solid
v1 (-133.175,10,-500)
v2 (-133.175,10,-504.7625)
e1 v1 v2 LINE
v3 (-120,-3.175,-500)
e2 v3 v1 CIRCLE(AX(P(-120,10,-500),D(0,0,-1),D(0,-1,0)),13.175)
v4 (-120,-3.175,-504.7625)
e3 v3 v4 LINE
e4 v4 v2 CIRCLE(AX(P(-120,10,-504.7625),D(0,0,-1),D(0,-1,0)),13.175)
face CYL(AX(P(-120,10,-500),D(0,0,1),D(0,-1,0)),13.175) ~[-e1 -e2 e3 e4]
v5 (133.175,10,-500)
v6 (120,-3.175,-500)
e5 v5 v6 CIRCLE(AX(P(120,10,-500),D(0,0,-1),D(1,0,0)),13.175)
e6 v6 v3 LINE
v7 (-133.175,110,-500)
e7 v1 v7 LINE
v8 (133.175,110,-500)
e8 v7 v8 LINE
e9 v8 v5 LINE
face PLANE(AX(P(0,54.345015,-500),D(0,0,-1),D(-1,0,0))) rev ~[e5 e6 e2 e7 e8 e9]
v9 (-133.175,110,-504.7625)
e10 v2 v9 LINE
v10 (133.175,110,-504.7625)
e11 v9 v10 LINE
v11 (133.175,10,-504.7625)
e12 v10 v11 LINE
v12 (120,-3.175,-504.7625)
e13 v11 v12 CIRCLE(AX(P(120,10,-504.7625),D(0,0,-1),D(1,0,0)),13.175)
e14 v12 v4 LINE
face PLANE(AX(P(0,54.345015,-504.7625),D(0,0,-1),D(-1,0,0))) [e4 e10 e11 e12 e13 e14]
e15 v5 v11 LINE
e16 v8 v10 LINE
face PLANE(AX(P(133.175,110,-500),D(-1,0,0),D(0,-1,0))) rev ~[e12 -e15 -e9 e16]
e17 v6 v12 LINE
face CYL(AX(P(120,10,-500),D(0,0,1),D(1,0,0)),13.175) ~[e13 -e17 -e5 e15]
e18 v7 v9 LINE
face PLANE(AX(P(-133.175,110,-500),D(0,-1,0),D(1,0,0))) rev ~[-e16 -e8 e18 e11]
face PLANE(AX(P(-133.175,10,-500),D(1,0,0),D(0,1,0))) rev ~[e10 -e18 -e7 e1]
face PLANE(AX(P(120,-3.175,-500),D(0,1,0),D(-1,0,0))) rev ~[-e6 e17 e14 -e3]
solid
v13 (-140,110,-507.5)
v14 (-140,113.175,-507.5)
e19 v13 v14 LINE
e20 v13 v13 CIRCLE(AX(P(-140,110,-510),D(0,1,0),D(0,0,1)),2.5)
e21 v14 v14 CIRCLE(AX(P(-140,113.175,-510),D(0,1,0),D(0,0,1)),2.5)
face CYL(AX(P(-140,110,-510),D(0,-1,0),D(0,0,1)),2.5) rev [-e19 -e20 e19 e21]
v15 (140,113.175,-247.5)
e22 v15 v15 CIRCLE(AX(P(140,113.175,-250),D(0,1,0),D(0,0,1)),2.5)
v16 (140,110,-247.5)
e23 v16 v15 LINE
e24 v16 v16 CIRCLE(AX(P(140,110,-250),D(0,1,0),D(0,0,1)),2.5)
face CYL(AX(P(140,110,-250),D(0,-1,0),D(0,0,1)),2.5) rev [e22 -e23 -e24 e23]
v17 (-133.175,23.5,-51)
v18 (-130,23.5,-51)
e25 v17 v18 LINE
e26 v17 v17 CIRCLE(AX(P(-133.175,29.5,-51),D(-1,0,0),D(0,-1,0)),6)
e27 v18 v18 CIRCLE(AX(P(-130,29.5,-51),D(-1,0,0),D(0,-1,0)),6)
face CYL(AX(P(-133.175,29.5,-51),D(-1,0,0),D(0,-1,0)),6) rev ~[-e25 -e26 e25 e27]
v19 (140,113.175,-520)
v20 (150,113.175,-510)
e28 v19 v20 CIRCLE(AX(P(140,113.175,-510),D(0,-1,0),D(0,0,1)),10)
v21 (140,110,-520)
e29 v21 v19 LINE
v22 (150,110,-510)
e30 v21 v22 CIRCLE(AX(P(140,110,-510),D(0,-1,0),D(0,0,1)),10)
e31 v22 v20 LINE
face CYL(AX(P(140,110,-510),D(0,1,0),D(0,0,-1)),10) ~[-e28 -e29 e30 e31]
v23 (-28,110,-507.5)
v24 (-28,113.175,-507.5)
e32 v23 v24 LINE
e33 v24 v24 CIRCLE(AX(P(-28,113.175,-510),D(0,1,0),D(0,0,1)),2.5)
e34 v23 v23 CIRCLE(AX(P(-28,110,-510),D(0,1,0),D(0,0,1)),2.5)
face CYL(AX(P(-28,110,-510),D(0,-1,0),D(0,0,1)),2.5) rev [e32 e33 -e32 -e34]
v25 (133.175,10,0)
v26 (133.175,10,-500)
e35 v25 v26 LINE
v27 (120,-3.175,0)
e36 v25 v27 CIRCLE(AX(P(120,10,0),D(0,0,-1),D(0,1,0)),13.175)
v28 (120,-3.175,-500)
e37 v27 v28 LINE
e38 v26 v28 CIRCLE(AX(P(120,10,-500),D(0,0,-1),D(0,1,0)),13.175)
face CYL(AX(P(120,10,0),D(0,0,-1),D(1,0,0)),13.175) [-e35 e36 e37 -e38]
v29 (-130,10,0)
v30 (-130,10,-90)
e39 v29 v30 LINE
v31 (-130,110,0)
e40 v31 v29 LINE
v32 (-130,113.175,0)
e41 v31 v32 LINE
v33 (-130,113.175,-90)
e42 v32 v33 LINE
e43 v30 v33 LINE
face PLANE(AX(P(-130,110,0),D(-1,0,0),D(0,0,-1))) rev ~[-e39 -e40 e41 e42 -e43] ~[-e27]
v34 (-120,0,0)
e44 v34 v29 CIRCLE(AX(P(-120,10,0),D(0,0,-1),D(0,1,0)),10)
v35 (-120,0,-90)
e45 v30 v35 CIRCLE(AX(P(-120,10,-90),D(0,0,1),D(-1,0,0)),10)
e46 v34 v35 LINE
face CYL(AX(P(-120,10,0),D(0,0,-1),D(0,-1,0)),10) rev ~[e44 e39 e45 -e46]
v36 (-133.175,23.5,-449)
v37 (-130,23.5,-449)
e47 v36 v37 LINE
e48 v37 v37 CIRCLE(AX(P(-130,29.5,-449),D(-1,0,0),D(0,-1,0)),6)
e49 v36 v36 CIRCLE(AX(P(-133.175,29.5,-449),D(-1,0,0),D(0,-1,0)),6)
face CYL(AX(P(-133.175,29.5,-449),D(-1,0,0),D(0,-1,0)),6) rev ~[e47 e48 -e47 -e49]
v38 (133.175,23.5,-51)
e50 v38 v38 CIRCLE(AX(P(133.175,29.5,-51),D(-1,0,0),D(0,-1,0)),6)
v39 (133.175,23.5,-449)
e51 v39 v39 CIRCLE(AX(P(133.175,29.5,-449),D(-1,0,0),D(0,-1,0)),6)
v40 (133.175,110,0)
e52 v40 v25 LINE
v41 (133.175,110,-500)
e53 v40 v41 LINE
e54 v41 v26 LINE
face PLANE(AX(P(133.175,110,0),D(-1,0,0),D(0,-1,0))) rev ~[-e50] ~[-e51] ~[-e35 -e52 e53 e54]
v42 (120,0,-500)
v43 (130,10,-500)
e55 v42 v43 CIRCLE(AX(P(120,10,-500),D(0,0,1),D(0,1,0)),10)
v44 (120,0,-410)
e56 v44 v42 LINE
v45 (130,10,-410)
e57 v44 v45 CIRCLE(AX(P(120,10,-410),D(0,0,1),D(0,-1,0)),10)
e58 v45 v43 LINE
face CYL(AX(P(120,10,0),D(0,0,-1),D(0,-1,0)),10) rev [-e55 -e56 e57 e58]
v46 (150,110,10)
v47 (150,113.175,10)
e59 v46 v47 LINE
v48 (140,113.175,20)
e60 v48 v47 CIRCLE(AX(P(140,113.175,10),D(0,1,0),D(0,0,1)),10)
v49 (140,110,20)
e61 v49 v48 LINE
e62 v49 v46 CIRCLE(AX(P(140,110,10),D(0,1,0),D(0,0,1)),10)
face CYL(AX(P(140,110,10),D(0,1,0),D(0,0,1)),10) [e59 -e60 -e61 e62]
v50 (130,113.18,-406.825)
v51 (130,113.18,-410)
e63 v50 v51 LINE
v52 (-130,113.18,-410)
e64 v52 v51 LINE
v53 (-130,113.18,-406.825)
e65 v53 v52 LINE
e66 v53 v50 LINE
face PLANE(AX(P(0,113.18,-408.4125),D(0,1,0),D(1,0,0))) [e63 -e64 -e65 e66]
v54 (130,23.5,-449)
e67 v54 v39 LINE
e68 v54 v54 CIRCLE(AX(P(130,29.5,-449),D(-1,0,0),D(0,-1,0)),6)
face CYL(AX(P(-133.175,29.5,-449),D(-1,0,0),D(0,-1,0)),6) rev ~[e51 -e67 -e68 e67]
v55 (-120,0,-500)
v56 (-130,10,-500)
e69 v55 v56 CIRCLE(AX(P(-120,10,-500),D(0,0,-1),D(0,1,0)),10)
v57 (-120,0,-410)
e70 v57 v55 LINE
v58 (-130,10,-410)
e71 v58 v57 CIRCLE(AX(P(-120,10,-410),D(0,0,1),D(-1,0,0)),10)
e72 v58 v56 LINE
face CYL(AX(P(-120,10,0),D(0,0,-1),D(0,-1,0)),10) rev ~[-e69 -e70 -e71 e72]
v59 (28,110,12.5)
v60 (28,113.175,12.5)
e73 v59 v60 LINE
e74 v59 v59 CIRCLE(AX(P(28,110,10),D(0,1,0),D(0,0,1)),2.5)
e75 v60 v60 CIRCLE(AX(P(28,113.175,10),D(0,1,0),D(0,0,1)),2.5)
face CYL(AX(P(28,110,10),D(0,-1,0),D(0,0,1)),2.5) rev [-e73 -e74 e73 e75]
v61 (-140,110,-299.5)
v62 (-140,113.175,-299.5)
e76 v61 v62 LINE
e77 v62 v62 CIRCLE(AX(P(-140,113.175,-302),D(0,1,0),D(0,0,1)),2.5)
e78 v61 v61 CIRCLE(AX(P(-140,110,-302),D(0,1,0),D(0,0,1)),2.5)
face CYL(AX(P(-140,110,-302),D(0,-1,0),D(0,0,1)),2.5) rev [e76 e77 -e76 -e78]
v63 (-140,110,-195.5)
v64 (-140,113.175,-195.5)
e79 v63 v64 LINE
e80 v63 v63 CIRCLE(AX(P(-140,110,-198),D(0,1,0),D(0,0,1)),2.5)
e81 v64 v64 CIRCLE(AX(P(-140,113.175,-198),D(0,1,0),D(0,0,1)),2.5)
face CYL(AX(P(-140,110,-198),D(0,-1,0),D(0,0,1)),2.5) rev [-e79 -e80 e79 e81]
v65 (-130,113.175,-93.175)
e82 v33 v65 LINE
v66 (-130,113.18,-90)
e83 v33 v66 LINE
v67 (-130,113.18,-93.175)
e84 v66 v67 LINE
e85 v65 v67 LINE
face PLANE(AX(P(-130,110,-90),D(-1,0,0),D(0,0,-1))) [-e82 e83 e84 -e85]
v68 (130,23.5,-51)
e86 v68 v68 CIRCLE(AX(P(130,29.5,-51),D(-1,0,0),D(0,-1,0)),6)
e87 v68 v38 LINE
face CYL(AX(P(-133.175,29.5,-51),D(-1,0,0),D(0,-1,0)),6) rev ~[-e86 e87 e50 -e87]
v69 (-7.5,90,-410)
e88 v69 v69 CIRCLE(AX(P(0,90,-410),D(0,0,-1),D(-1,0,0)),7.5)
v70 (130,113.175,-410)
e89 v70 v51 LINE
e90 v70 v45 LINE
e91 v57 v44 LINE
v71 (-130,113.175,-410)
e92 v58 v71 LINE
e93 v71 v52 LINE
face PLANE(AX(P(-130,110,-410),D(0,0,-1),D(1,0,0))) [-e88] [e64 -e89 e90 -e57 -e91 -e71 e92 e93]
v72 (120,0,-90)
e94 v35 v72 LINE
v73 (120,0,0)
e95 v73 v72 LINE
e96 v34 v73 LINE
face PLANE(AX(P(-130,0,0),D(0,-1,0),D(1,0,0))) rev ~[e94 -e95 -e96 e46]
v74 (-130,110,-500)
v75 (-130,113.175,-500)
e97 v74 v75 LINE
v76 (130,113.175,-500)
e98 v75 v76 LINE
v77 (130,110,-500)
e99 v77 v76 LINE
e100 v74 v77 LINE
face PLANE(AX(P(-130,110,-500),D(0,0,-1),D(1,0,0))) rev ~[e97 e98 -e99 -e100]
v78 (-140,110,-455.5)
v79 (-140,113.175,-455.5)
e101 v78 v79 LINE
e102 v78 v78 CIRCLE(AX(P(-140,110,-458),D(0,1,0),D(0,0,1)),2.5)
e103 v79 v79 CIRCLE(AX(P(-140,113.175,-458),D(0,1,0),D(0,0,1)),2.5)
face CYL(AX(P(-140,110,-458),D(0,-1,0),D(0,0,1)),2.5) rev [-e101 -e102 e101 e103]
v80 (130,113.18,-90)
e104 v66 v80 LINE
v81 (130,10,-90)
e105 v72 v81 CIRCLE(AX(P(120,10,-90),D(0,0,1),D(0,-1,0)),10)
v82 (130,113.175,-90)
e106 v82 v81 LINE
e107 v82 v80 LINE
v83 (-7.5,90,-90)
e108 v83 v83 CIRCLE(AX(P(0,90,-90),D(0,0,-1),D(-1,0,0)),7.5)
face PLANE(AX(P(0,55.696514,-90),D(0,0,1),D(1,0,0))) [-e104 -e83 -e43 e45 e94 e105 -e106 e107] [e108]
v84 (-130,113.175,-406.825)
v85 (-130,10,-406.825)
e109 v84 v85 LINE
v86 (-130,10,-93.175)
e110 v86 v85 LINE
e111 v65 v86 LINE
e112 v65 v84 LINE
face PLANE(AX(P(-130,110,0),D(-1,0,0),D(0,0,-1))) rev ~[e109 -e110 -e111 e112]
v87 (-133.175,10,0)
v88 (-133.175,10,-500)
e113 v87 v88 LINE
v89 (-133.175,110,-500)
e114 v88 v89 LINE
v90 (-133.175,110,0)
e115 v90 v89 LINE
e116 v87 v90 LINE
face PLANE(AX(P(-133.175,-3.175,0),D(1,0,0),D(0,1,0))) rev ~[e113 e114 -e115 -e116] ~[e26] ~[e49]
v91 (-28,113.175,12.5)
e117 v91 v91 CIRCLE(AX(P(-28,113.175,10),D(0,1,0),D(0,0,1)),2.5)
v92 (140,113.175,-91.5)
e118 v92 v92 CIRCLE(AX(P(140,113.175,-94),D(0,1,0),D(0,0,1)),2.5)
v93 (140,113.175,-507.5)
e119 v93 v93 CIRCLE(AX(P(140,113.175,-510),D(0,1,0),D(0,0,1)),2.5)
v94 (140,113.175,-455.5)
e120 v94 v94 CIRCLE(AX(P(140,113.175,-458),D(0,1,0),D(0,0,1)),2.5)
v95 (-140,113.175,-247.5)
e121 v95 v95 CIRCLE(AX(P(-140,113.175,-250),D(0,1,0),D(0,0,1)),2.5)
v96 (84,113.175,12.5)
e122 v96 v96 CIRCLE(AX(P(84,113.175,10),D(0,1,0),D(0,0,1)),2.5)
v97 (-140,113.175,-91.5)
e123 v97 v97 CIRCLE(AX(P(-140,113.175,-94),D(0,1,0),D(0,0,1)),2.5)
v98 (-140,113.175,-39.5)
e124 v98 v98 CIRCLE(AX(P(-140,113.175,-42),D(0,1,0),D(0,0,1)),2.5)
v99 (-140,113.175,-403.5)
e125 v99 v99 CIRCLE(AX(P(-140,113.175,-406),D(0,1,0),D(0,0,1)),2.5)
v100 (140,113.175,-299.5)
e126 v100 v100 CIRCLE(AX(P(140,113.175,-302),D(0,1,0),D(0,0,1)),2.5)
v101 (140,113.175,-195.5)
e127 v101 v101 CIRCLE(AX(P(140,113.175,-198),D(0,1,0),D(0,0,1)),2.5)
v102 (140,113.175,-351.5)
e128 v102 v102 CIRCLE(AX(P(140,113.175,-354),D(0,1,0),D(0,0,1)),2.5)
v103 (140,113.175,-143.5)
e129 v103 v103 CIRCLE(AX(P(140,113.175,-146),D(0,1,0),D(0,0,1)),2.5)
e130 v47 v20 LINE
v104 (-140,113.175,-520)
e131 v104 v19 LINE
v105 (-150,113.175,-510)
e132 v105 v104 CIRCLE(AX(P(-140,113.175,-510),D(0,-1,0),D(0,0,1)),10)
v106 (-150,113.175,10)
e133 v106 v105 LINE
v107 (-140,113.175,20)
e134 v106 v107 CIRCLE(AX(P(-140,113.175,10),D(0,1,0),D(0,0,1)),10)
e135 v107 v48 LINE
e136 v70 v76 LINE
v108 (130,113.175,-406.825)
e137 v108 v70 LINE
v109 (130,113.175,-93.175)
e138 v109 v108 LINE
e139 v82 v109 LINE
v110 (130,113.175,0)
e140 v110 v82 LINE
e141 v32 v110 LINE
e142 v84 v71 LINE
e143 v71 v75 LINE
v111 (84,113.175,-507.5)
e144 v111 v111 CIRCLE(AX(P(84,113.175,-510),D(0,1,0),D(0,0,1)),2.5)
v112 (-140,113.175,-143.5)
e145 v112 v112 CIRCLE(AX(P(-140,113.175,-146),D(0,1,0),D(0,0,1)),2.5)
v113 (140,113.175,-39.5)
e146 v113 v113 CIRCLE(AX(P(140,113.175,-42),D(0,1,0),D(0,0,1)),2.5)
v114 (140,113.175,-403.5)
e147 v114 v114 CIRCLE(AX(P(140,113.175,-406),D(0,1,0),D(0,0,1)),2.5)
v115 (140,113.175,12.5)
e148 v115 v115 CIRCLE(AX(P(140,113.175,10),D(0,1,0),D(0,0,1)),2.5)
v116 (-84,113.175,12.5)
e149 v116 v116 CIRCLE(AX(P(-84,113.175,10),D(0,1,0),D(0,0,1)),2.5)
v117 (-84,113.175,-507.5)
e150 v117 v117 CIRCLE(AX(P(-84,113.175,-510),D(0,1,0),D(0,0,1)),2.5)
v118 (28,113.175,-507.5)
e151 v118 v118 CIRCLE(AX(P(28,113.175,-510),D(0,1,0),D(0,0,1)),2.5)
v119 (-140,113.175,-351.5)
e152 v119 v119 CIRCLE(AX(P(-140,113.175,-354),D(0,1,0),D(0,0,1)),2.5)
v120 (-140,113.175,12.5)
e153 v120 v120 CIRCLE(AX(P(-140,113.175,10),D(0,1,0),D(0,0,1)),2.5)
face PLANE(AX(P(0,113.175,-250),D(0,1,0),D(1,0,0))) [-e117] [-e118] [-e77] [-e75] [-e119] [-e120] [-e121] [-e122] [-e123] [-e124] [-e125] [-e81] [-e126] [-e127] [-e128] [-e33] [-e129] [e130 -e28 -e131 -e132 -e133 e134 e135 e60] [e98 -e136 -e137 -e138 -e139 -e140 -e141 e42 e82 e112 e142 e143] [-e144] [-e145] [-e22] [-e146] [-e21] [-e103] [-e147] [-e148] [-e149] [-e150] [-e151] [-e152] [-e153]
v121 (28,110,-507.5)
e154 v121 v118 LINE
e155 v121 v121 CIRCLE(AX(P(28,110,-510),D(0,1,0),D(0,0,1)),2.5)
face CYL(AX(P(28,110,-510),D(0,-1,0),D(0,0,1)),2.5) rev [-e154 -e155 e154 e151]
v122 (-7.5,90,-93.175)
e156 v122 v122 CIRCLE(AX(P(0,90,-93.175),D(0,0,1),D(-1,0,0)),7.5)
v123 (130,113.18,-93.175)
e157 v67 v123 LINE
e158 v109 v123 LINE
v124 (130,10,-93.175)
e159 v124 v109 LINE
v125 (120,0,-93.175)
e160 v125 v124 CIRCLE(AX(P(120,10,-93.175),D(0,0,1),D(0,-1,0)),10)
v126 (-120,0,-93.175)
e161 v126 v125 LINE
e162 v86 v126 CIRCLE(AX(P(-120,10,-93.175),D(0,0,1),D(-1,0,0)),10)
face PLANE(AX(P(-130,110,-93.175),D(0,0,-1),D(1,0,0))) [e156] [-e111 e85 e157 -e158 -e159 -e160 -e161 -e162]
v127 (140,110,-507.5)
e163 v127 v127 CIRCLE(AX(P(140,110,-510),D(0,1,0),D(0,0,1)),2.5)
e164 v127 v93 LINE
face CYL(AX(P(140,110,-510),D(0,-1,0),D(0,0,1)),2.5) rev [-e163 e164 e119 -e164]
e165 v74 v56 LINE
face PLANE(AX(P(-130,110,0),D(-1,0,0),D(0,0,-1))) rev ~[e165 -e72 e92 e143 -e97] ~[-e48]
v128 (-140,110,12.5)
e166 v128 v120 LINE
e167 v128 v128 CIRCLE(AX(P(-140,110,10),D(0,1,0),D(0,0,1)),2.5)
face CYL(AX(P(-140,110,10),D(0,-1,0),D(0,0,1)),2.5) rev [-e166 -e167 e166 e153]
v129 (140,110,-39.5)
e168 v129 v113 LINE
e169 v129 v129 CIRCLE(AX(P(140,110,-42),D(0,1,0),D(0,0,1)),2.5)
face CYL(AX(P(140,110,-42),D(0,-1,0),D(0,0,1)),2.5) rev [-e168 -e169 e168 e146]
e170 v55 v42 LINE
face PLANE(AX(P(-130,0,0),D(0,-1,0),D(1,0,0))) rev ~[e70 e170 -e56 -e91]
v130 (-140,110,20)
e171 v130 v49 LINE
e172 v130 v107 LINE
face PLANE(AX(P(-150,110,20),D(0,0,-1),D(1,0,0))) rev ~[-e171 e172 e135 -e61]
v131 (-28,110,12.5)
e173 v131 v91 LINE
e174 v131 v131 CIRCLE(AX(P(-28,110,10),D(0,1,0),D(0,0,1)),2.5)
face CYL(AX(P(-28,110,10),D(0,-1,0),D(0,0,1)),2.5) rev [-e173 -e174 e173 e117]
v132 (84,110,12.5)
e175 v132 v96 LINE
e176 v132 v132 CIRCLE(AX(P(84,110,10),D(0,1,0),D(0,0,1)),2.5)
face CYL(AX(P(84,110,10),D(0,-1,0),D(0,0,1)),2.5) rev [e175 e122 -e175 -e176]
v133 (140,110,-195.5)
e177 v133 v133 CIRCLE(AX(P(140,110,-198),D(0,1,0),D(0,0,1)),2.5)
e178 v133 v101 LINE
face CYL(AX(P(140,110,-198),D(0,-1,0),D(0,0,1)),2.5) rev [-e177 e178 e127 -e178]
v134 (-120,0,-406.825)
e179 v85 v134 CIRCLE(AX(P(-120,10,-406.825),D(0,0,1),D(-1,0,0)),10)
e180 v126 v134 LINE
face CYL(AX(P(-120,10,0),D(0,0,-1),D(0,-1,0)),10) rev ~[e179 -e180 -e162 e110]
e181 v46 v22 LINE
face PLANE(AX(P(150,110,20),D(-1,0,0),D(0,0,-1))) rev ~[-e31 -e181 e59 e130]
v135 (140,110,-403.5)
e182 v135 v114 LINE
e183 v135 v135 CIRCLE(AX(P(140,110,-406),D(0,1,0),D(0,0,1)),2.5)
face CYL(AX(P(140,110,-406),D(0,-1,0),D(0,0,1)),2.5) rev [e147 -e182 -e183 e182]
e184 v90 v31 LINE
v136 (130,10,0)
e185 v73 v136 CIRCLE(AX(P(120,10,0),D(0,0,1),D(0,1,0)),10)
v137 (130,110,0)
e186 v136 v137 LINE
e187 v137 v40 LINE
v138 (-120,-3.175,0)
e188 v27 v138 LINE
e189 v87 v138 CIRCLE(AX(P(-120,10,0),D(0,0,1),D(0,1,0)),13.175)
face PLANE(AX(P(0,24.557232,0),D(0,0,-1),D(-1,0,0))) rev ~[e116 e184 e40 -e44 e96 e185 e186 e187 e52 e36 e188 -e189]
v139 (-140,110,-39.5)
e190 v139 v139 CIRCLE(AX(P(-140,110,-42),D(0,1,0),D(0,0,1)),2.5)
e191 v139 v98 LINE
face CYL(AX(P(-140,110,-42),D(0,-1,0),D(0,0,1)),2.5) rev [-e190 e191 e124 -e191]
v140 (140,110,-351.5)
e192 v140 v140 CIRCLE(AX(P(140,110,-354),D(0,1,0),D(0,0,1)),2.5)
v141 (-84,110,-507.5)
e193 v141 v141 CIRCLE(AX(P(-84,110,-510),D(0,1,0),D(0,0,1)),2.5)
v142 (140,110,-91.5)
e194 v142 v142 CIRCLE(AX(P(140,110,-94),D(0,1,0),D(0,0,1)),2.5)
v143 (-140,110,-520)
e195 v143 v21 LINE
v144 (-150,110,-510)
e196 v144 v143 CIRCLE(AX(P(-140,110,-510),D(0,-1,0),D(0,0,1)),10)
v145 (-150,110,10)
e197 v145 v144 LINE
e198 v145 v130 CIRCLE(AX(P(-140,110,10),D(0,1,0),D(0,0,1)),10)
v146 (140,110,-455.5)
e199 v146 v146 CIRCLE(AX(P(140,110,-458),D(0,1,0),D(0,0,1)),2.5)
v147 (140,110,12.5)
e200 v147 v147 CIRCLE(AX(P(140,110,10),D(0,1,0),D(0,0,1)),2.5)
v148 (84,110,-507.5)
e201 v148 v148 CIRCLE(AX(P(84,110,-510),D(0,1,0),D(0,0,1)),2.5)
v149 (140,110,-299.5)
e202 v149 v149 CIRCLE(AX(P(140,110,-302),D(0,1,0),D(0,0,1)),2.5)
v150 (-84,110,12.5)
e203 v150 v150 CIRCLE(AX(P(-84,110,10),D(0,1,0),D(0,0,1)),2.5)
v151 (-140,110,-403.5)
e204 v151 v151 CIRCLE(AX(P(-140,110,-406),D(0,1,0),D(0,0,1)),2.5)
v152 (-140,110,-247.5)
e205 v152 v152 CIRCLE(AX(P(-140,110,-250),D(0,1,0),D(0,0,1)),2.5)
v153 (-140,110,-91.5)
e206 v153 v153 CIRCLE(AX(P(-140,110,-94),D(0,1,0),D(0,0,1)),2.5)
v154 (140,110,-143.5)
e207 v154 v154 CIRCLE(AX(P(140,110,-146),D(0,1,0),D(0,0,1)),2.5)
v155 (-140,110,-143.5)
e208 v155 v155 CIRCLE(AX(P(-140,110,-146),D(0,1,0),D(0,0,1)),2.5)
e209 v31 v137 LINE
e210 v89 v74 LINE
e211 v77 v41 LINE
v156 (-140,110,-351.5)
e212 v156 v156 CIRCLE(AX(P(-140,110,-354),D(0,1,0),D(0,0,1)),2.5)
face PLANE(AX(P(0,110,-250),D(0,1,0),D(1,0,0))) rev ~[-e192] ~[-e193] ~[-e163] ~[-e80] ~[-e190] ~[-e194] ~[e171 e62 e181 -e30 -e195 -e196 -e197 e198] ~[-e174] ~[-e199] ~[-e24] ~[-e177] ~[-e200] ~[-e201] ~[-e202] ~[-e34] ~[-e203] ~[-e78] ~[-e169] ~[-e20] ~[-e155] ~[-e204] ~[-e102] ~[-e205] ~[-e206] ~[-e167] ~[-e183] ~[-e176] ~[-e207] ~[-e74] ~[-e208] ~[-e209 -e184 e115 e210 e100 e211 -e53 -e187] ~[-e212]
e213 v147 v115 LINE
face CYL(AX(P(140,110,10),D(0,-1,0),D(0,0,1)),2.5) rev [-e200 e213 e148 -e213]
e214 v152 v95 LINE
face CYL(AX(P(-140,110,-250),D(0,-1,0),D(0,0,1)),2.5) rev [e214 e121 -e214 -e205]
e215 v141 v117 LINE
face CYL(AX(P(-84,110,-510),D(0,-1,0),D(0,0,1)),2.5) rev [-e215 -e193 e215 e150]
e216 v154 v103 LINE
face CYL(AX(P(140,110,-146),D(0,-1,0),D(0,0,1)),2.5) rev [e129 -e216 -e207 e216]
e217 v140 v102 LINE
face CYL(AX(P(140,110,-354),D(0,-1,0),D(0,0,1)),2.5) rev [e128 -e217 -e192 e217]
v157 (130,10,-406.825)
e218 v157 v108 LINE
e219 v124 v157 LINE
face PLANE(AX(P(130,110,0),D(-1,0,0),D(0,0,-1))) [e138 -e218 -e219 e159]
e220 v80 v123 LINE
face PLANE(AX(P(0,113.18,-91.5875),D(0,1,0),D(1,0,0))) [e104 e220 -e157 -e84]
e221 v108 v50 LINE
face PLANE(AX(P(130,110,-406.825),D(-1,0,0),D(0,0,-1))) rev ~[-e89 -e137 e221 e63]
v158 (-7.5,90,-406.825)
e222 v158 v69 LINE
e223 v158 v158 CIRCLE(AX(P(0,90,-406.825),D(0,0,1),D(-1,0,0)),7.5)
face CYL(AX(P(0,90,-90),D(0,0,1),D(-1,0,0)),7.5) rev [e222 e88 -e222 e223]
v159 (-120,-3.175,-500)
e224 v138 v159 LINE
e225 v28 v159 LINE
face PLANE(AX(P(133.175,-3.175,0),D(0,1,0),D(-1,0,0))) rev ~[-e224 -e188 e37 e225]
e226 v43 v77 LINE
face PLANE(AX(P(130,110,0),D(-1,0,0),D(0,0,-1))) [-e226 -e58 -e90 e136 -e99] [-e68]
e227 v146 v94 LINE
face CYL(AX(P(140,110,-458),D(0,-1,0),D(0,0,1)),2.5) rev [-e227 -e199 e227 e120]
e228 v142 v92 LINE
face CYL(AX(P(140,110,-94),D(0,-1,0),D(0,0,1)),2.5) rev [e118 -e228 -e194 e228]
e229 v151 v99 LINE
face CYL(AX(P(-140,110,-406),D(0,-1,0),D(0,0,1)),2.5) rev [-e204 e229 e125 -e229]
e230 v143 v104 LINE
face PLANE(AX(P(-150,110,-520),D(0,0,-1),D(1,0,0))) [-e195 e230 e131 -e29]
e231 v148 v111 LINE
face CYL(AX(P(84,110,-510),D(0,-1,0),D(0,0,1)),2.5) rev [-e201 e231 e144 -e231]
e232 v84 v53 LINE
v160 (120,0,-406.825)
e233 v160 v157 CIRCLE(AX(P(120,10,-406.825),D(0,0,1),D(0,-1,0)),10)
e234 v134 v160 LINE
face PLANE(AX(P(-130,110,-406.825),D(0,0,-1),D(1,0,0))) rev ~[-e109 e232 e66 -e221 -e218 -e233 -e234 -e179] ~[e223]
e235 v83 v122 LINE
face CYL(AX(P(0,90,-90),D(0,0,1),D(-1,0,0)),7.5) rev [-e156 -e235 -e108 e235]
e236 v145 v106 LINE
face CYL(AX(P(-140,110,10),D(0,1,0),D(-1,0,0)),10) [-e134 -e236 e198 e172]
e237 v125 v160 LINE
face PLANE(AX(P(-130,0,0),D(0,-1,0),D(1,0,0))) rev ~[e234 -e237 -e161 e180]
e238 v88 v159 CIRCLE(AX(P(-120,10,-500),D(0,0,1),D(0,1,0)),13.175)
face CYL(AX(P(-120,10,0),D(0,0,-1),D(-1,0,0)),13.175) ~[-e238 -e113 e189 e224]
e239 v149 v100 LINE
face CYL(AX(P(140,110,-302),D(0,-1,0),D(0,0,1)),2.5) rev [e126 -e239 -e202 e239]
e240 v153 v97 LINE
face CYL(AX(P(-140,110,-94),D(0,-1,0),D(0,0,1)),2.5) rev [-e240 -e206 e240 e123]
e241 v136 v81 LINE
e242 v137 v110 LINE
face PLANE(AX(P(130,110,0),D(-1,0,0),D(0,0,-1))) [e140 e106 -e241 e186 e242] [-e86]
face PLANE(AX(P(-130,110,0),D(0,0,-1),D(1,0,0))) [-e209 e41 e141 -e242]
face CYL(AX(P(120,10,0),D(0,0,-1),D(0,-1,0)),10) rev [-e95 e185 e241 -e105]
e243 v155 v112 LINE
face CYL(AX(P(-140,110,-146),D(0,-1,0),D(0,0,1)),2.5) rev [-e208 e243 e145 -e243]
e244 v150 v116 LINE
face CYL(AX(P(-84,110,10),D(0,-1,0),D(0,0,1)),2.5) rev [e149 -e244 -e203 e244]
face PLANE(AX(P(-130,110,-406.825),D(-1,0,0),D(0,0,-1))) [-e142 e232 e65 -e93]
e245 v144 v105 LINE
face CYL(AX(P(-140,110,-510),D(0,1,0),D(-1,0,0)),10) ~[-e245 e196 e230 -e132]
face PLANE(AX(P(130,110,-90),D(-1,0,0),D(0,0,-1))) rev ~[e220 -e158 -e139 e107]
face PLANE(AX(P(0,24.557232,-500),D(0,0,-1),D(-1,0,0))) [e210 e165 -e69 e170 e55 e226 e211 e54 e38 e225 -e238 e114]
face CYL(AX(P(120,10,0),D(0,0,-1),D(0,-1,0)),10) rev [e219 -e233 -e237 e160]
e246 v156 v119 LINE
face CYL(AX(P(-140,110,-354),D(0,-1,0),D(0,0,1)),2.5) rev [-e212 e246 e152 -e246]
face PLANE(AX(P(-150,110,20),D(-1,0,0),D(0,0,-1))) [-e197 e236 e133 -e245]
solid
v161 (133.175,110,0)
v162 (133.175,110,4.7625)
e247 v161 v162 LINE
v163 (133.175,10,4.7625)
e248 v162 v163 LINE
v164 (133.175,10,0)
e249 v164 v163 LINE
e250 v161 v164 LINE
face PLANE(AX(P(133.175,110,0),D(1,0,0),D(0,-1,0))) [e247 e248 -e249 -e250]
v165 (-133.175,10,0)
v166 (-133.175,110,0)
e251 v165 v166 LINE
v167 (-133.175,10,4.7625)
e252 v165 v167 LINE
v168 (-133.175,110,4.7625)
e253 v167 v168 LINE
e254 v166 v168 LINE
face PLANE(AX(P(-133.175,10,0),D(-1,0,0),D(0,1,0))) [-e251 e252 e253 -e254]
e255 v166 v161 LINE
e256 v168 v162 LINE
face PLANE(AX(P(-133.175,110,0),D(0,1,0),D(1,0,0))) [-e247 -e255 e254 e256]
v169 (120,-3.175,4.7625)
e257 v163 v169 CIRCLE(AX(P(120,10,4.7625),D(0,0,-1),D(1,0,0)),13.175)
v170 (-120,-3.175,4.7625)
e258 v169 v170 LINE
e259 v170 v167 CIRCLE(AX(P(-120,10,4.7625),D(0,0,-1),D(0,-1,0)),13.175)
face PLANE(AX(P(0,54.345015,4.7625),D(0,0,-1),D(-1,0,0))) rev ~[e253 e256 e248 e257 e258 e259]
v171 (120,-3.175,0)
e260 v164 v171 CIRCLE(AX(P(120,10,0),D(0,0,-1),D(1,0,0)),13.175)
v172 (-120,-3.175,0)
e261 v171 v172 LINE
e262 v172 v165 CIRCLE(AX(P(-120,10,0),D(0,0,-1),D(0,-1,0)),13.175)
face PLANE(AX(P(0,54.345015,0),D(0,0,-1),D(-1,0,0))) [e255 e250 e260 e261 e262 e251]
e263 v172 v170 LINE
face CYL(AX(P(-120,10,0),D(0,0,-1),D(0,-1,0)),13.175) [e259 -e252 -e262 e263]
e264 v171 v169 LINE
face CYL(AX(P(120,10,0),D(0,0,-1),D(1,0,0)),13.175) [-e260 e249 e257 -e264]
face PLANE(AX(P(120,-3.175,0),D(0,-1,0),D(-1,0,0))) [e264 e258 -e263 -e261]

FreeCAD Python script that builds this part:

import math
import FreeCAD as App
import Part
import Sketcher
Q = App.Units.Quantity


def edges_at(feature, points):
    """Names of the edges that pass closest to the given points."""
    edges = feature.Shape.Edges
    near = lambda p: min(range(len(edges)), key=lambda i: edges[i].distToShape(Part.Vertex(*p))[0])
    return sorted({f"Edge{near(p) + 1}" for p in points})


def add_polygon(sketch, points):
    """Adds a closed chain of lines whose ends are joined by coincident constraints."""
    first, n = sketch.GeometryCount, len(points)
    for a, b in zip(points, points[1:] + points[:1]):
        sketch.addGeometry(Part.LineSegment(App.Vector(*a, 0), App.Vector(*b, 0)), False)
    for i in range(n):
        sketch.addConstraint(Sketcher.Constraint("Coincident", first + i, 2, first + (i + 1) % n, 1))

doc = App.newDocument("Part")
params = doc.addObject("Spreadsheet::Sheet", "Params")
for row, (alias, value) in enumerate([
    ("sketch1_width", "260 mm"),
    ("sketch1_height", "110 mm"),
    ("sketch1_width2", "266.35 mm"),
    ("pad1_length", "500 mm"),
    ("fillet_radius", "10 mm"),
    ("fillet2_radius", "13.175 mm"),
    ("sketch2_width", "240 mm"),
    ("sketch2_height", "100 mm"),
    ("pad2_length", "4.7625 mm"),
    ("sketch3_radius", "10 mm"),
    ("sketch3_width", "240 mm"),
    ("sketch3_height", "100 mm"),
    ("pad3_length", "3.175 mm"),
    ("sketch4_width", "300 mm"),
    ("sketch4_width2", "260 mm"),
    ("sketch4_height", "540 mm"),
    ("sketch4_height2", "500 mm"),
    ("pad4_length", "3.175 mm"),
    ("fillet3_radius", "10 mm"),
    ("sketch5_width", "240 mm"),
    ("sketch5_height", "100 mm"),
    ("pad5_length", "4.7625 mm"),
    ("sketch6_radius", "10 mm"),
    ("sketch6_width", "260 mm"),
    ("sketch6_height", "100 mm"),
    ("pad6_length", "3.175 mm"),
    ("sketch7_diameter", "12 mm"),
    ("sketch8_diameter", "15 mm"),
    ("pad7_length", "320 mm"),
    ("sketch9_width", "260 mm"),
    ("pad8_length", "3.18 mm"),
    ("sketch10_diameter", "5 mm"),
    ("pocket2_length", "3.175 mm"),
], start=1):
    params.set(f"A{row}", alias)
    params.set(f"B{row}", "=" + value)
    params.setAlias(f"B{row}", alias)

body = doc.addObject("PartDesign::Body", "Body")

sketch1 = body.newObject("Sketcher::SketchObject", "Sketch")
sketch1.AttachmentSupport = (doc.getObject("XY_Plane"), [""])
sketch1.MapMode = "FlatFace"
add_polygon(sketch1, [(130, 0), (-130, 0), (-130, 110), (-133.2, 110), (-133.2, -3.2), (133.2, -3.2), (133.2, 110), (130, 110)])
sketch1.addConstraint([
    Sketcher.Constraint("Horizontal", 0),
    Sketcher.Constraint("Vertical", 1),
    Sketcher.Constraint("Horizontal", 2),
    Sketcher.Constraint("Vertical", 3),
    Sketcher.Constraint("Horizontal", 4),
    Sketcher.Constraint("Vertical", 5),
    Sketcher.Constraint("Horizontal", 6),
    Sketcher.Constraint("Vertical", 7),
    Sketcher.Constraint("Symmetric", 0, 2, 7, 2, -1, 1),
    Sketcher.Constraint("Symmetric", 2, 2, 5, 2, -2),
    Sketcher.Constraint("DistanceX", 0, 2, 0, 1, Q("260 mm")),
    Sketcher.Constraint("DistanceY", 1, 1, 1, 2, Q("110 mm")),
    Sketcher.Constraint("DistanceX", 4, 1, 4, 2, Q("266.35 mm")),
    Sketcher.Constraint("DistanceY", 3, 2, 3, 1, Q("113.175 mm")),
])
sketch1.setExpression("Constraints[18]", "Params.sketch1_width")
sketch1.setExpression("Constraints[19]", "Params.sketch1_height")
sketch1.setExpression("Constraints[20]", "Params.sketch1_width2")
pad1 = body.newObject("PartDesign::Pad", "Pad")
pad1.Profile = sketch1
pad1.setExpression("Length", "Params.pad1_length")
pad1.Reversed = True
doc.recompute()

fillet = body.newObject("PartDesign::Fillet", "Fillet")
fillet.Base = (pad1, edges_at(pad1, [(-130, 0, -250), (130, 0, -250)]))
fillet.setExpression("Radius", "Params.fillet_radius")
doc.recompute()

fillet2 = body.newObject("PartDesign::Fillet", "Fillet001")
fillet2.Base = (fillet, edges_at(fillet, [(-133.175, -3.175, -250), (133.175, -3.175, -250)]))
fillet2.setExpression("Radius", "Params.fillet2_radius")
body2 = doc.addObject("PartDesign::Body", "Body001")

sketch2 = body2.newObject("Sketcher::SketchObject", "Sketch001")
sketch2.AttachmentSupport = (doc.getObject("XY_Plane001"), [""])
sketch2.MapMode = "FlatFace"
sketch2.addGeometry([
    Part.LineSegment(App.Vector(133, 10, 0), App.Vector(133, 110, 0)),
    Part.LineSegment(App.Vector(133, 110, 0), App.Vector(-133, 110, 0)),
    Part.LineSegment(App.Vector(-133, 110, 0), App.Vector(-133, 10, 0)),
    Part.ArcOfCircle(Part.Circle(App.Vector(-120, 10, 0), App.Vector(0, 0, 1), 13), math.radians(180), math.radians(270)),
    Part.LineSegment(App.Vector(-120, -3, 0), App.Vector(120, -3, 0)),
    Part.ArcOfCircle(Part.Circle(App.Vector(120, 10, 0), App.Vector(0, 0, 1), 13), math.radians(-90), math.radians(0)),
], False)
sketch2.addConstraint([
    Sketcher.Constraint("Coincident", 0, 2, 1, 1),
    Sketcher.Constraint("Coincident", 1, 2, 2, 1),
    Sketcher.Constraint("Tangent", 2, 2, 3, 1),
    Sketcher.Constraint("Tangent", 3, 2, 4, 1),
    Sketcher.Constraint("Tangent", 4, 2, 5, 1),
    Sketcher.Constraint("Tangent", 5, 2, 0, 1),
    Sketcher.Constraint("Vertical", 0),
    Sketcher.Constraint("Horizontal", 1),
    Sketcher.Constraint("Vertical", 2),
    Sketcher.Constraint("Horizontal", 4),
    Sketcher.Constraint("Equal", 3, 5),
    Sketcher.Constraint("DistanceX", 4, 1, 4, 2, Q("240 mm")),
    Sketcher.Constraint("DistanceY", 0, 1, 0, 2, Q("100 mm")),
    Sketcher.Constraint("DistanceX", 3, 3, -1, 1, Q("120 mm")),
    Sketcher.Constraint("DistanceY", -1, 1, 3, 3, Q("10 mm")),
    Sketcher.Constraint("Radius", 3, Q("13.175 mm")),
])
sketch2.setExpression("Constraints[11]", "Params.sketch2_width")
sketch2.setExpression("Constraints[12]", "Params.sketch2_height")
pad2 = body2.newObject("PartDesign::Pad", "Pad001")
pad2.Profile = sketch2
pad2.setExpression("Length", "Params.pad2_length")
body3 = doc.addObject("PartDesign::Body", "Body002")

sketch3 = body3.newObject("Sketcher::SketchObject", "Sketch002")
sketch3.AttachmentSupport = (doc.getObject("XY_Plane002"), [""])
sketch3.MapMode = "FlatFace"
sketch3.AttachmentOffset = App.Placement(App.Vector(0, 0, -90), App.Rotation())
sketch3.addGeometry([
    Part.LineSegment(App.Vector(120, 0, 0), App.Vector(-120, 0, 0)),
    Part.ArcOfCircle(Part.Circle(App.Vector(-120, 10, 0), App.Vector(0, 0, 1), 10), math.radians(180), math.radians(270)),
    Part.LineSegment(App.Vector(-130, 10, 0), App.Vector(-130, 110, 0)),
    Part.LineSegment(App.Vector(-130, 110, 0), App.Vector(130, 110, 0)),
    Part.LineSegment(App.Vector(130, 110, 0), App.Vector(130, 10, 0)),
    Part.ArcOfCircle(Part.Circle(App.Vector(120, 10, 0), App.Vector(0, 0, 1), 10), math.radians(-90), math.radians(0)),
], False)
sketch3.addConstraint([
    Sketcher.Constraint("Tangent", 0, 2, 1, 2),
    Sketcher.Constraint("Tangent", 1, 1, 2, 1),
    Sketcher.Constraint("Coincident", 2, 2, 3, 1),
    Sketcher.Constraint("Coincident", 3, 2, 4, 1),
    Sketcher.Constraint("Tangent", 4, 2, 5, 2),
    Sketcher.Constraint("Tangent", 5, 1, 0, 1),
    Sketcher.Constraint("Horizontal", 0),
    Sketcher.Constraint("Vertical", 2),
    Sketcher.Constraint("Horizontal", 3),
    Sketcher.Constraint("Vertical", 4),
    Sketcher.Constraint("Equal", 1, 5),
    Sketcher.Constraint("Symmetric", 0, 2, 5, 1, -1, 1),
    Sketcher.Constraint("Radius", 1, Q("10 mm")),
    Sketcher.Constraint("DistanceX", 0, 2, 0, 1, Q("240 mm")),
    Sketcher.Constraint("DistanceY", 2, 1, 2, 2, Q("100 mm")),
])
sketch3.setExpression("Constraints[12]", "Params.sketch3_radius")
sketch3.setExpression("Constraints[13]", "Params.sketch3_width")
sketch3.setExpression("Constraints[14]", "Params.sketch3_height")
pad3 = body3.newObject("PartDesign::Pad", "Pad002")
pad3.Profile = sketch3
pad3.setExpression("Length", "Params.pad3_length")
pad3.Reversed = True
body4 = doc.addObject("PartDesign::Body", "Body003")

sketch4 = body4.newObject("Sketcher::SketchObject", "Sketch003")
sketch4.AttachmentSupport = (doc.getObject("XZ_Plane003"), [""])
sketch4.MapMode = "FlatFace"
sketch4.AttachmentOffset = App.Placement(App.Vector(0, 0, -110), App.Rotation())
add_polygon(sketch4, [(-150, -520), (-150, 20), (150, 20), (150, -520)])
add_polygon(sketch4, [(130, 0), (-130, 0), (-130, -500), (130, -500)])
sketch4.addConstraint([
    Sketcher.Constraint("Vertical", 0),
    Sketcher.Constraint("Horizontal", 1),
    Sketcher.Constraint("Vertical", 2),
    Sketcher.Constraint("Horizontal", 3),
    Sketcher.Constraint("Horizontal", 4),
    Sketcher.Constraint("Vertical", 5),
    Sketcher.Constraint("Horizontal", 6),
    Sketcher.Constraint("Vertical", 7),
    Sketcher.Constraint("Symmetric", 4, 2, 7, 2, -1, 1),
    Sketcher.Constraint("DistanceX", 1, 1, 1, 2, Q("300 mm")),
    Sketcher.Constraint("DistanceX", 4, 2, 4, 1, Q("260 mm")),
    Sketcher.Constraint("DistanceY", 0, 1, 0, 2, Q("540 mm")),
    Sketcher.Constraint("DistanceY", 5, 2, 5, 1, Q("500 mm")),
    Sketcher.Constraint("DistanceX", 0, 2, -1, 1, Q("150 mm")),
    Sketcher.Constraint("DistanceY", -1, 1, 0, 2, Q("20 mm")),
])
sketch4.setExpression("Constraints[17]", "Params.sketch4_width")
sketch4.setExpression("Constraints[18]", "Params.sketch4_width2")
sketch4.setExpression("Constraints[19]", "Params.sketch4_height")
sketch4.setExpression("Constraints[20]", "Params.sketch4_height2")
pad4 = body4.newObject("PartDesign::Pad", "Pad003")
pad4.Profile = sketch4
pad4.setExpression("Length", "Params.pad4_length")
pad4.Reversed = True
doc.recompute()

fillet3 = body4.newObject("PartDesign::Fillet", "Fillet002")
fillet3.Base = (pad4, edges_at(pad4, [
    (150, 111.588, -520),
    (150, 111.588, 20),
    (-150, 111.588, 20),
    (-150, 111.588, -520),
]))
fillet3.setExpression("Radius", "Params.fillet3_radius")
body5 = doc.addObject("PartDesign::Body", "Body004")

sketch5 = body5.newObject("Sketcher::SketchObject", "Sketch004")
sketch5.AttachmentSupport = (doc.getObject("XY_Plane004"), [""])
sketch5.MapMode = "FlatFace"
sketch5.AttachmentOffset = App.Placement(App.Vector(0, 0, -500), App.Rotation())
sketch5.addGeometry([
    Part.LineSegment(App.Vector(-133, 110, 0), App.Vector(133, 110, 0)),
    Part.LineSegment(App.Vector(133, 110, 0), App.Vector(133, 10, 0)),
    Part.ArcOfCircle(Part.Circle(App.Vector(120, 10, 0), App.Vector(0, 0, 1), 13), math.radians(-90), math.radians(0)),
    Part.LineSegment(App.Vector(120, -3, 0), App.Vector(-120, -3, 0)),
    Part.ArcOfCircle(Part.Circle(App.Vector(-120, 10, 0), App.Vector(0, 0, 1), 13), math.radians(180), math.radians(270)),
    Part.LineSegment(App.Vector(-133, 10, 0), App.Vector(-133, 110, 0)),
], False)
sketch5.addConstraint([
    Sketcher.Constraint("Coincident", 0, 2, 1, 1),
    Sketcher.Constraint("Tangent", 1, 2, 2, 2),
    Sketcher.Constraint("Tangent", 2, 1, 3, 1),
    Sketcher.Constraint("Tangent", 3, 2, 4, 2),
    Sketcher.Constraint("Tangent", 4, 1, 5, 1),
    Sketcher.Constraint("Coincident", 5, 2, 0, 1),
    Sketcher.Constraint("Horizontal", 0),
    Sketcher.Constraint("Vertical", 1),
    Sketcher.Constraint("Horizontal", 3),
    Sketcher.Constraint("Vertical", 5),
    Sketcher.Constraint("Equal", 2, 4),
    Sketcher.Constraint("DistanceX", 3, 2, 3, 1, Q("240 mm")),
    Sketcher.Constraint("DistanceY", 1, 2, 1, 1, Q("100 mm")),
    Sketcher.Constraint("DistanceX", -1, 1, 2, 3, Q("120 mm")),
    Sketcher.Constraint("DistanceY", -1, 1, 2, 3, Q("10 mm")),
    Sketcher.Constraint("Radius", 2, Q("13.175 mm")),
])
sketch5.setExpression("Constraints[11]", "Params.sketch5_width")
sketch5.setExpression("Constraints[12]", "Params.sketch5_height")
pad5 = body5.newObject("PartDesign::Pad", "Pad004")
pad5.Profile = sketch5
pad5.setExpression("Length", "Params.pad5_length")
pad5.Reversed = True
doc.recompute()

boolean = body.newObject("PartDesign::Boolean", "Boolean")
boolean.Type = "Fuse"
boolean.addObjects([body4])

sketch6 = body.newObject("Sketcher::SketchObject", "Sketch005")
sketch6.AttachmentSupport = (doc.getObject("XY_Plane"), [""])
sketch6.MapMode = "FlatFace"
sketch6.AttachmentOffset = App.Placement(App.Vector(0, 0, -410), App.Rotation())
sketch6.addGeometry([
    Part.LineSegment(App.Vector(130, 110, 0), App.Vector(-130, 110, 0)),
    Part.LineSegment(App.Vector(-130, 110, 0), App.Vector(-130, 10, 0)),
    Part.ArcOfCircle(Part.Circle(App.Vector(-120, 10, 0), App.Vector(0, 0, 1), 10), math.radians(180), math.radians(270)),
    Part.LineSegment(App.Vector(-120, 0, 0), App.Vector(120, 0, 0)),
    Part.ArcOfCircle(Part.Circle(App.Vector(120, 10, 0), App.Vector(0, 0, 1), 10), math.radians(-90), math.radians(0)),
    Part.LineSegment(App.Vector(130, 10, 0), App.Vector(130, 110, 0)),
], False)
sketch6.addConstraint([
    Sketcher.Constraint("Coincident", 0, 2, 1, 1),
    Sketcher.Constraint("Tangent", 1, 2, 2, 1),
    Sketcher.Constraint("Tangent", 2, 2, 3, 1),
    Sketcher.Constraint("Tangent", 3, 2, 4, 1),
    Sketcher.Constraint("Tangent", 4, 2, 5, 1),
    Sketcher.Constraint("Coincident", 5, 2, 0, 1),
    Sketcher.Constraint("Horizontal", 0),
    Sketcher.Constraint("Vertical", 1),
    Sketcher.Constraint("Horizontal", 3),
    Sketcher.Constraint("Vertical", 5),
    Sketcher.Constraint("Equal", 2, 4),
    Sketcher.Constraint("Symmetric", 2, 2, 3, 2, -1, 1),
    Sketcher.Constraint("Radius", 2, Q("10 mm")),
    Sketcher.Constraint("DistanceX", 0, 2, 0, 1, Q("260 mm")),
    Sketcher.Constraint("DistanceY", 1, 2, 1, 1, Q("100 mm")),
])
sketch6.setExpression("Constraints[12]", "Params.sketch6_radius")
sketch6.setExpression("Constraints[13]", "Params.sketch6_width")
sketch6.setExpression("Constraints[14]", "Params.sketch6_height")
pad6 = body.newObject("PartDesign::Pad", "Pad005")
pad6.Profile = sketch6
pad6.setExpression("Length", "Params.pad6_length")

sketch7 = body.newObject("Sketcher::SketchObject", "Sketch006")
sketch7.AttachmentSupport = (doc.getObject("YZ_Plane"), [""])
sketch7.MapMode = "FlatFace"
sketch7.AttachmentOffset = App.Placement(App.Vector(0, 0, -133.175), App.Rotation())
sketch7.addGeometry([
    Part.Circle(App.Vector(30, -449, 0), App.Vector(0, 0, 1), 6),
    Part.Circle(App.Vector(30, -51, 0), App.Vector(0, 0, 1), 6),
], False)
sketch7.addConstraint([
    Sketcher.Constraint("Equal", 0, 1),
    Sketcher.Constraint("Vertical", 0, 3, 1, 3),
    Sketcher.Constraint("Diameter", 0, Q("12 mm")),
    Sketcher.Constraint("DistanceY", 0, 3, -1, 1, Q("449 mm")),
    Sketcher.Constraint("DistanceY", 1, 3, -1, 1, Q("51 mm")),
    Sketcher.Constraint("DistanceX", -1, 1, 0, 3, Q("29.5 mm")),
])
sketch7.setExpression("Constraints[2]", "Params.sketch7_diameter")
pocket1 = body.newObject("PartDesign::Pocket", "Pocket")
pocket1.Profile = sketch7
pocket1.Type = "ThroughAll"
pocket1.Reversed = True
body6 = doc.addObject("PartDesign::Body", "Body005")

sketch8 = body6.newObject("Sketcher::SketchObject", "Sketch007")
sketch8.AttachmentSupport = (doc.getObject("XY_Plane005"), [""])
sketch8.MapMode = "FlatFace"
sketch8.AttachmentOffset = App.Placement(App.Vector(0, 0, -90), App.Rotation())
sketch8.addGeometry(Part.Circle(App.Vector(0, 90, 0), App.Vector(0, 0, 1), 8), False)
sketch8.addConstraint([
    Sketcher.Constraint("PointOnObject", 0, 3, -2),
    Sketcher.Constraint("Diameter", 0, Q("15 mm")),
    Sketcher.Constraint("DistanceY", -1, 1, 0, 3, Q("90 mm")),
])
sketch8.setExpression("Constraints[1]", "Params.sketch8_diameter")
pad7 = body6.newObject("PartDesign::Pad", "Pad006")
pad7.Profile = sketch8
pad7.setExpression("Length", "Params.pad7_length")
pad7.Reversed = True
doc.recompute()

body7 = doc.addObject("PartDesign::Body", "Body006")
body7.BaseFeature = body6
boolean2 = body.newObject("PartDesign::Boolean", "Boolean001")
boolean2.Type = "Cut"
boolean2.addObjects([body7])
doc.recompute()

boolean3 = body3.newObject("PartDesign::Boolean", "Boolean002")
boolean3.Type = "Cut"
boolean3.addObjects([body6])
doc.recompute()

boolean4 = body.newObject("PartDesign::Boolean", "Boolean003")
boolean4.Type = "Fuse"
boolean4.addObjects([body3])

sketch9 = body.newObject("Sketcher::SketchObject", "Sketch008")
sketch9.AttachmentSupport = (doc.getObject("XZ_Plane"), [""])
sketch9.MapMode = "FlatFace"
sketch9.AttachmentOffset = App.Placement(App.Vector(0, 0, -110), App.Rotation())
add_polygon(sketch9, [(-130, -410), (-130, -406.8), (130, -406.8), (130, -410)])
add_polygon(sketch9, [(-130, -93.2), (-130, -90), (130, -90), (130, -93.2)])
sketch9.addConstraint([
    Sketcher.Constraint("Vertical", 0),
    Sketcher.Constraint("Horizontal", 1),
    Sketcher.Constraint("Vertical", 2),
    Sketcher.Constraint("Horizontal", 3),
    Sketcher.Constraint("Vertical", 4),
    Sketcher.Constraint("Horizontal", 5),
    Sketcher.Constraint("Vertical", 6),
    Sketcher.Constraint("Horizontal", 7),
    Sketcher.Constraint("Vertical", 3, 2, 4, 2),
    Sketcher.Constraint("Vertical", 2, 2, 5, 2),
    Sketcher.Constraint("Equal", 2, 4),
    Sketcher.Constraint("DistanceX", 1, 1, 1, 2, Q("260 mm")),
    Sketcher.Constraint("DistanceX", 0, 2, -1, 1, Q("130 mm")),
    Sketcher.Constraint("DistanceY", 2, 2, -1, 1, Q("410 mm")),
    Sketcher.Constraint("DistanceY", 4, 2, -1, 1, Q("90 mm")),
    Sketcher.Constraint("DistanceY", 0, 1, 0, 2, Q("3.175 mm")),
])
sketch9.setExpression("Constraints[19]", "Params.sketch9_width")
pad8 = body.newObject("PartDesign::Pad", "Pad007")
pad8.Profile = sketch9
pad8.setExpression("Length", "Params.pad8_length")
pad8.Reversed = True

sketch10 = body.newObject("Sketcher::SketchObject", "Sketch009")
sketch10.AttachmentSupport = (doc.getObject("XZ_Plane"), [""])
sketch10.MapMode = "FlatFace"
sketch10.AttachmentOffset = App.Placement(App.Vector(0, 0, -110), App.Rotation())
sketch10.addGeometry([
    Part.Circle(App.Vector(-140, 10, 0), App.Vector(0, 0, 1), 2.5),
    Part.Circle(App.Vector(-140, -42, 0), App.Vector(0, 0, 1), 2.5),
    Part.Circle(App.Vector(-140, -94, 0), App.Vector(0, 0, 1), 2.5),
    Part.Circle(App.Vector(-140, -146, 0), App.Vector(0, 0, 1), 2.5),
    Part.Circle(App.Vector(-140, -198, 0), App.Vector(0, 0, 1), 2.5),
    Part.Circle(App.Vector(-140, -250, 0), App.Vector(0, 0, 1), 2.5),
    Part.Circle(App.Vector(-140, -302, 0), App.Vector(0, 0, 1), 2.5),
    Part.Circle(App.Vector(-140, -354, 0), App.Vector(0, 0, 1), 2.5),
    Part.Circle(App.Vector(-140, -406, 0), App.Vector(0, 0, 1), 2.5),
    Part.Circle(App.Vector(-140, -458, 0), App.Vector(0, 0, 1), 2.5),
    Part.Circle(App.Vector(-140, -510, 0), App.Vector(0, 0, 1), 2.5),
    Part.Circle(App.Vector(-84, -510, 0), App.Vector(0, 0, 1), 2.5),
    Part.Circle(App.Vector(-28, -510, 0), App.Vector(0, 0, 1), 2.5),
    Part.Circle(App.Vector(28, -510, 0), App.Vector(0, 0, 1), 2.5),
    Part.Circle(App.Vector(84, -510, 0), App.Vector(0, 0, 1), 2.5),
    Part.Circle(App.Vector(140, -510, 0), App.Vector(0, 0, 1), 2.5),
    Part.Circle(App.Vector(140, -458, 0), App.Vector(0, 0, 1), 2.5),
    Part.Circle(App.Vector(140, -406, 0), App.Vector(0, 0, 1), 2.5),
    Part.Circle(App.Vector(140, -354, 0), App.Vector(0, 0, 1), 2.5),
    Part.Circle(App.Vector(140, -302, 0), App.Vector(0, 0, 1), 2.5),
    Part.Circle(App.Vector(140, -250, 0), App.Vector(0, 0, 1), 2.5),
    Part.Circle(App.Vector(140, -198, 0), App.Vector(0, 0, 1), 2.5),
    Part.Circle(App.Vector(140, -146, 0), App.Vector(0, 0, 1), 2.5),
    Part.Circle(App.Vector(140, -94, 0), App.Vector(0, 0, 1), 2.5),
    Part.Circle(App.Vector(140, -42, 0), App.Vector(0, 0, 1), 2.5),
    Part.Circle(App.Vector(140, 10, 0), App.Vector(0, 0, 1), 2.5),
    Part.Circle(App.Vector(84, 10, 0), App.Vector(0, 0, 1), 2.5),
    Part.Circle(App.Vector(28, 10, 0), App.Vector(0, 0, 1), 2.5),
    Part.Circle(App.Vector(-28, 10, 0), App.Vector(0, 0, 1), 2.5),
    Part.Circle(App.Vector(-84, 10, 0), App.Vector(0, 0, 1), 2.5),
], False)
sketch10.addConstraint([
    Sketcher.Constraint("Equal", 0, 1),
    Sketcher.Constraint("Equal", 1, 2),
    Sketcher.Constraint("Equal", 2, 3),
    Sketcher.Constraint("Equal", 3, 4),
    Sketcher.Constraint("Equal", 4, 5),
    Sketcher.Constraint("Equal", 5, 6),
    Sketcher.Constraint("Equal", 6, 7),
    Sketcher.Constraint("Equal", 7, 8),
    Sketcher.Constraint("Equal", 8, 9),
    Sketcher.Constraint("Equal", 9, 10),
    Sketcher.Constraint("Equal", 10, 11),
    Sketcher.Constraint("Equal", 11, 12),
    Sketcher.Constraint("Equal", 12, 13),
    Sketcher.Constraint("Equal", 13, 14),
    Sketcher.Constraint("Equal", 14, 15),
    Sketcher.Constraint("Equal", 15, 16),
    Sketcher.Constraint("Equal", 16, 17),
    Sketcher.Constraint("Equal", 17, 18),
    Sketcher.Constraint("Equal", 18, 19),
    Sketcher.Constraint("Equal", 19, 20),
    Sketcher.Constraint("Equal", 20, 21),
    Sketcher.Constraint("Equal", 21, 22),
    Sketcher.Constraint("Equal", 22, 23),
    Sketcher.Constraint("Equal", 23, 24),
    Sketcher.Constraint("Equal", 24, 25),
    Sketcher.Constraint("Equal", 25, 26),
    Sketcher.Constraint("Equal", 26, 27),
    Sketcher.Constraint("Equal", 27, 28),
    Sketcher.Constraint("Equal", 28, 29),
    Sketcher.Constraint("Symmetric", 12, 3, 13, 3, -2),
    Sketcher.Constraint("Symmetric", 11, 3, 14, 3, -2),
    Sketcher.Constraint("Symmetric", 10, 3, 15, 3, -2),
    Sketcher.Constraint("Symmetric", 9, 3, 16, 3, -2),
    Sketcher.Constraint("Symmetric", 8, 3, 17, 3, -2),
    Sketcher.Constraint("Symmetric", 7, 3, 18, 3, -2),
    Sketcher.Constraint("Symmetric", 6, 3, 19, 3, -2),
    Sketcher.Constraint("Symmetric", 5, 3, 20, 3, -2),
    Sketcher.Constraint("Symmetric", 4, 3, 21, 3, -2),
    Sketcher.Constraint("Symmetric", 3, 3, 22, 3, -2),
    Sketcher.Constraint("Symmetric", 2, 3, 23, 3, -2),
    Sketcher.Constraint("Symmetric", 1, 3, 24, 3, -2),
    Sketcher.Constraint("Symmetric", 0, 3, 25, 3, -2),
    Sketcher.Constraint("Symmetric", 27, 3, 28, 3, -2),
    Sketcher.Constraint("Symmetric", 26, 3, 29, 3, -2),
    Sketcher.Constraint("Horizontal", 10, 3, 11, 3),
    Sketcher.Constraint("Horizontal", 11, 3, 12, 3),
    Sketcher.Constraint("Horizontal", 25, 3, 26, 3),
    Sketcher.Constraint("Horizontal", 26, 3, 27, 3),
    Sketcher.Constraint("Vertical", 0, 3, 1, 3),
    Sketcher.Constraint("Vertical", 1, 3, 2, 3),
    Sketcher.Constraint("Vertical", 2, 3, 3, 3),
    Sketcher.Constraint("Vertical", 3, 3, 4, 3),
    Sketcher.Constraint("Vertical", 4, 3, 5, 3),
    Sketcher.Constraint("Vertical", 5, 3, 6, 3),
    Sketcher.Constraint("Vertical", 6, 3, 7, 3),
    Sketcher.Constraint("Vertical", 7, 3, 8, 3),
    Sketcher.Constraint("Vertical", 8, 3, 9, 3),
    Sketcher.Constraint("Vertical", 9, 3, 10, 3),
    Sketcher.Constraint("Vertical", 14, 3, 26, 3),
    Sketcher.Constraint("Vertical", 13, 3, 27, 3),
    Sketcher.Constraint("Diameter", 0, Q("5 mm")),
    Sketcher.Constraint("DistanceX", 0, 3, -1, 1, Q("140 mm")),
    Sketcher.Constraint("DistanceY", -1, 1, 0, 3, Q("10 mm")),
    Sketcher.Constraint("DistanceY", 1, 3, -1, 1, Q("42 mm")),
    Sketcher.Constraint("DistanceY", 2, 3, -1, 1, Q("94 mm")),
    Sketcher.Constraint("DistanceY", 3, 3, -1, 1, Q("146 mm")),
    Sketcher.Constraint("DistanceY", 4, 3, -1, 1, Q("198 mm")),
    Sketcher.Constraint("DistanceY", 5, 3, -1, 1, Q("250 mm")),
    Sketcher.Constraint("DistanceY", 6, 3, -1, 1, Q("302 mm")),
    Sketcher.Constraint("DistanceY", 7, 3, -1, 1, Q("354 mm")),
    Sketcher.Constraint("DistanceY", 8, 3, -1, 1, Q("406 mm")),
    Sketcher.Constraint("DistanceY", 9, 3, -1, 1, Q("458 mm")),
    Sketcher.Constraint("DistanceY", 10, 3, -1, 1, Q("510 mm")),
    Sketcher.Constraint("DistanceX", 11, 3, -1, 1, Q("84 mm")),
    Sketcher.Constraint("DistanceX", 12, 3, -1, 1, Q("28 mm")),
])
sketch10.setExpression("Constraints[60]", "Params.sketch10_diameter")
pocket2 = body.newObject("PartDesign::Pocket", "Pocket001")
pocket2.Profile = sketch10
pocket2.setExpression("Length", "Params.pocket2_length")

doc.recompute()
